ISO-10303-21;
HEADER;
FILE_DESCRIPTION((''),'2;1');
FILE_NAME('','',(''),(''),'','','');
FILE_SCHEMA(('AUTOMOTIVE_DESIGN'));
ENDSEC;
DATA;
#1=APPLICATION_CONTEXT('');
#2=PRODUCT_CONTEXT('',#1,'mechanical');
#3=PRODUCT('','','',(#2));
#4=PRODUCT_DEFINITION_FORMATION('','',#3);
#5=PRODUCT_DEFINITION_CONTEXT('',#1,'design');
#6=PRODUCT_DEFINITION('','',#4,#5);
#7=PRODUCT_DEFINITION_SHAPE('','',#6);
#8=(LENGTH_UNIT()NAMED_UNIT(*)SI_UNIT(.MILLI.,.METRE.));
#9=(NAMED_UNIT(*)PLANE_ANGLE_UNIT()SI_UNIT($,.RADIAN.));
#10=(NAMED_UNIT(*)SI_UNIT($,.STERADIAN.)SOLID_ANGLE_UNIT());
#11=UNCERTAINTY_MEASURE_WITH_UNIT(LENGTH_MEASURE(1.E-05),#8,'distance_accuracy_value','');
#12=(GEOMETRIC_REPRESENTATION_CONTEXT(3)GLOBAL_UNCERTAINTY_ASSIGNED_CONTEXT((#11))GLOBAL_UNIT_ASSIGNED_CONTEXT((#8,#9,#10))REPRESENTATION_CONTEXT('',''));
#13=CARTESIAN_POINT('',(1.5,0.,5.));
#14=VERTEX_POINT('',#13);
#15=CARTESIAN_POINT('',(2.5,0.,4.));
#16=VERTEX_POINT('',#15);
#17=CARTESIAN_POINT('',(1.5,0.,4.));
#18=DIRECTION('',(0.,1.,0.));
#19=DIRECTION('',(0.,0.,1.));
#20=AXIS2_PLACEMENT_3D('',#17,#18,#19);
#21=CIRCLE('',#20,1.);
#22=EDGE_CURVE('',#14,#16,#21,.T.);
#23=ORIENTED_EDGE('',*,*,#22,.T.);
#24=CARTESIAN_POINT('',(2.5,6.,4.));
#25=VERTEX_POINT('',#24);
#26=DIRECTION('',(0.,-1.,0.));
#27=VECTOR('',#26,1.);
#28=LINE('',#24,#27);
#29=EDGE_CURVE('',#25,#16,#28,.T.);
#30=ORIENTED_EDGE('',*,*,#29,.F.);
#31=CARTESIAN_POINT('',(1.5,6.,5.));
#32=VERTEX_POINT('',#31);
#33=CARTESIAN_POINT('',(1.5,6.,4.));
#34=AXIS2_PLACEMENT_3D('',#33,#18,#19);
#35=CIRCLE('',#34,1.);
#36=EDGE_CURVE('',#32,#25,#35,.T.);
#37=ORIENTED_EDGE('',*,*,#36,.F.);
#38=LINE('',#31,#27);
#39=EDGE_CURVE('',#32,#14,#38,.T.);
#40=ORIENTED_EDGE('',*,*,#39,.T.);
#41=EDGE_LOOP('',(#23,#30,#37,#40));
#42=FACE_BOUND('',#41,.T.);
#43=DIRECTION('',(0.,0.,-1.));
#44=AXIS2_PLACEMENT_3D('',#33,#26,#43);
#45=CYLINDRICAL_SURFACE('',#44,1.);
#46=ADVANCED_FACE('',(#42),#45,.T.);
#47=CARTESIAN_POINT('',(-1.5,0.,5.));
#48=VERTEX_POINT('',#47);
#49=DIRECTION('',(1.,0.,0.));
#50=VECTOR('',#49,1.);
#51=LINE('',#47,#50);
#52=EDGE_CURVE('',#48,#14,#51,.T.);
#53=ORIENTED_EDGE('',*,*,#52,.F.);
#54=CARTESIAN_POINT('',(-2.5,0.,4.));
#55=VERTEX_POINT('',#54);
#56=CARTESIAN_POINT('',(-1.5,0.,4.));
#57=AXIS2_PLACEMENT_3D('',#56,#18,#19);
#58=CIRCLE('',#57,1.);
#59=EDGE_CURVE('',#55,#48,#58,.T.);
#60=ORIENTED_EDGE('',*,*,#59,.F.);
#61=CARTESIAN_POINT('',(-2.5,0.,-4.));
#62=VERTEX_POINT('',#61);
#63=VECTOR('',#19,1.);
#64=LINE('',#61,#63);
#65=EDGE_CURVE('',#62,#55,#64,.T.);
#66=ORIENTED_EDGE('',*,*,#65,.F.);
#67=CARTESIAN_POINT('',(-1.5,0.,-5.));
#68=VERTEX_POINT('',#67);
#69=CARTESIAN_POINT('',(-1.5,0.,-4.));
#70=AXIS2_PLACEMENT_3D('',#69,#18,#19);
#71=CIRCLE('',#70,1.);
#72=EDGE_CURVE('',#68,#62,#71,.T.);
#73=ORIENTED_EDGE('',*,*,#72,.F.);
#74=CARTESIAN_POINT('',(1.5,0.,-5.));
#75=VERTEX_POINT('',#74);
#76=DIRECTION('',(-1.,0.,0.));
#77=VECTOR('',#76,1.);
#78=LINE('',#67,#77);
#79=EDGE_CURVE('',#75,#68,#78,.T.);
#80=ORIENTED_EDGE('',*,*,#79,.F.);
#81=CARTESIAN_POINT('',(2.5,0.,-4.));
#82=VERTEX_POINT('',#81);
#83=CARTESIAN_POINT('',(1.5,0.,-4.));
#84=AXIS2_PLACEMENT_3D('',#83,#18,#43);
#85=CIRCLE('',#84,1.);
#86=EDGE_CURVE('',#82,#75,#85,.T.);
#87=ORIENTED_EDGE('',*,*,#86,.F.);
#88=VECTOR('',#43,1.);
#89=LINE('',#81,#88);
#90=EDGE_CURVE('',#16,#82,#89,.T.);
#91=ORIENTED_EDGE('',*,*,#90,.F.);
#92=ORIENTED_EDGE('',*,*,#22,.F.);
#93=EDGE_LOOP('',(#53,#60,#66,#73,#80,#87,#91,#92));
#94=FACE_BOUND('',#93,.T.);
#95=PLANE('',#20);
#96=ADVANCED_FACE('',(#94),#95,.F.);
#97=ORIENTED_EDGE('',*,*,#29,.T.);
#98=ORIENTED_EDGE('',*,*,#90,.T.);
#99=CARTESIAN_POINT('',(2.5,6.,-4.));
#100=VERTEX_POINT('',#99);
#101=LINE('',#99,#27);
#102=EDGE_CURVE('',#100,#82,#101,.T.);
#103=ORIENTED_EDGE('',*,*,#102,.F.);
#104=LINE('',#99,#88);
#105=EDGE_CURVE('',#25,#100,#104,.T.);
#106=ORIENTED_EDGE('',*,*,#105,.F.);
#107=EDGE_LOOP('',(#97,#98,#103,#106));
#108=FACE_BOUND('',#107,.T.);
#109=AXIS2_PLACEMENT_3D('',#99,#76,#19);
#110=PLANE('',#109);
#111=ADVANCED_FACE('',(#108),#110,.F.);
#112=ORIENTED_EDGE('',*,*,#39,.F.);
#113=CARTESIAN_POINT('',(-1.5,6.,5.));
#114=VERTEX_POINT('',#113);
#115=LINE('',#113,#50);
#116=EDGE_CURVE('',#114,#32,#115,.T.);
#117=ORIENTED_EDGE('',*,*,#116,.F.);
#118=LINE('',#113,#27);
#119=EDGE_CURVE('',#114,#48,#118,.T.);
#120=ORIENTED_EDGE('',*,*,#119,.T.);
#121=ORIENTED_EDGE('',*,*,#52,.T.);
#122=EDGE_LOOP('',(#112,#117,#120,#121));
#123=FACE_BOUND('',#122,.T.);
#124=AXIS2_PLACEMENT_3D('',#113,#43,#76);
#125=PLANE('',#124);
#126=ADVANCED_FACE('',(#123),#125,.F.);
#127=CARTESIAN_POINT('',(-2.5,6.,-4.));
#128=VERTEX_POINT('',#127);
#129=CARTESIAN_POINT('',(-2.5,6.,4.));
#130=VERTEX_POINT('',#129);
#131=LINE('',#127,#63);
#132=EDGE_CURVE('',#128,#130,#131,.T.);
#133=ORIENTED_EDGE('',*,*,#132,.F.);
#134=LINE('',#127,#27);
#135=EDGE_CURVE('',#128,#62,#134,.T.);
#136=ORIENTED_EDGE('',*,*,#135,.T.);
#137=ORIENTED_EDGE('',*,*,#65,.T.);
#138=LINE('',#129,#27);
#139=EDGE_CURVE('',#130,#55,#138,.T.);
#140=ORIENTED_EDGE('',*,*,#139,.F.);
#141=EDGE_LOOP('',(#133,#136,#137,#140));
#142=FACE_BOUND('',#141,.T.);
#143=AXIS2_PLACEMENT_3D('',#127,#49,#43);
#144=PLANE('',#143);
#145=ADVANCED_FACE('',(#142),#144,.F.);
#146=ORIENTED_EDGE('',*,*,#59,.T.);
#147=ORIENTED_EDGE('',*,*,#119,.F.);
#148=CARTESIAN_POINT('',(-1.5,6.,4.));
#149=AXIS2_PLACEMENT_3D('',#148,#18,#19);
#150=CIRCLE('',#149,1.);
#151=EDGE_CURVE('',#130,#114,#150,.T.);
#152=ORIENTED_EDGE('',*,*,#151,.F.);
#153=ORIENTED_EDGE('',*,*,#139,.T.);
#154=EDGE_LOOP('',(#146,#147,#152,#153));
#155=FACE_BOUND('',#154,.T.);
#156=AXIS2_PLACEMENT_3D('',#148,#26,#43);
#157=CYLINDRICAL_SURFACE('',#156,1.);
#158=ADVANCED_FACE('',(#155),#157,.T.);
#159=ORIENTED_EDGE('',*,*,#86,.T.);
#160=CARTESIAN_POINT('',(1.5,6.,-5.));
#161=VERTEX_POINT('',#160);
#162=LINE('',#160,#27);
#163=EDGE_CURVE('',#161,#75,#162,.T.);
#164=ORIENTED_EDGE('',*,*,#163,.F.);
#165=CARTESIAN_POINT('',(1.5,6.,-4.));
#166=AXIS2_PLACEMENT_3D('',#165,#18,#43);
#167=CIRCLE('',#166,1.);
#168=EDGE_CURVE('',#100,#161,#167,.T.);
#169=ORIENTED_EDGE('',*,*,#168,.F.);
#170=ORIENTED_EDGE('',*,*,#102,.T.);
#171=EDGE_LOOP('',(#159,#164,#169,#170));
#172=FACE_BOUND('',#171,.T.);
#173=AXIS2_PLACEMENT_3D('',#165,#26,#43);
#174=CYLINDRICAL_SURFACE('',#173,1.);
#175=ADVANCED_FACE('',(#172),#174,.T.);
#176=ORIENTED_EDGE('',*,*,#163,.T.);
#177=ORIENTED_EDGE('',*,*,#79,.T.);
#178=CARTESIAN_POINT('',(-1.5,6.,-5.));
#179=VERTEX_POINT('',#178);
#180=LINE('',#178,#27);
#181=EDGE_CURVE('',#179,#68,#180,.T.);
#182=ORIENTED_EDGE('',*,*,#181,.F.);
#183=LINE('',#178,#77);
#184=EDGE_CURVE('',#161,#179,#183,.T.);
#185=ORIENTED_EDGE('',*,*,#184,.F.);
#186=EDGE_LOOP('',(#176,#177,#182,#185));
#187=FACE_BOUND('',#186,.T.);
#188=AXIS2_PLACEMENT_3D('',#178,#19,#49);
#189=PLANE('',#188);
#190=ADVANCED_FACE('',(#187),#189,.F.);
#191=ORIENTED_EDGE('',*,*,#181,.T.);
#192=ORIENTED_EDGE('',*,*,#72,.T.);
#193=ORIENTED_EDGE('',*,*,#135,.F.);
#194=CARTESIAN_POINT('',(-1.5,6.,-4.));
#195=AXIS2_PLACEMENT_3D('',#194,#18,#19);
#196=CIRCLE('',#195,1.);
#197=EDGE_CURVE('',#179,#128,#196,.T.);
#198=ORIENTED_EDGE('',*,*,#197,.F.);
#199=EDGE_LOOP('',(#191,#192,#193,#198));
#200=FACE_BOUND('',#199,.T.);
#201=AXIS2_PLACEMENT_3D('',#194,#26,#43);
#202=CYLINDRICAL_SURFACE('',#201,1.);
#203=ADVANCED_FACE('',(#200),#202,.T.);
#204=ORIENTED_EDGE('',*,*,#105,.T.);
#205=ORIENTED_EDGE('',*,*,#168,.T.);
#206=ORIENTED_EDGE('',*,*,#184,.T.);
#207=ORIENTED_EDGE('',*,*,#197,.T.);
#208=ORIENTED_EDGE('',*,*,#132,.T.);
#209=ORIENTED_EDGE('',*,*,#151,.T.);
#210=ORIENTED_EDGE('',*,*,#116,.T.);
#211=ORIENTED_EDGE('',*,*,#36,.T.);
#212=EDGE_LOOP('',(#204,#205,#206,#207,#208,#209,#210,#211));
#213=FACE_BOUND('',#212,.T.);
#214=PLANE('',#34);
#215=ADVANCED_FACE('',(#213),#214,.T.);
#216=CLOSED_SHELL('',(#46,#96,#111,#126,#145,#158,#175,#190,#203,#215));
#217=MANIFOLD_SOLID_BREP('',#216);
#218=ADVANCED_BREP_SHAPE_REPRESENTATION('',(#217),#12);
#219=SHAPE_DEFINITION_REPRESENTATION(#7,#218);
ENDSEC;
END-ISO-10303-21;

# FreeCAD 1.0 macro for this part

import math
import FreeCAD as App
import Part
import Sketcher
from FreeCAD import Vector

doc = App.newDocument("Part")
body = doc.addObject("PartDesign::Body", "Body")

# Sketch on XZ plane
sketch1 = body.newObject("Sketcher::SketchObject", "Sketch")
sketch1.AttachmentSupport = (doc.getObject("XZ_Plane"), [""])
sketch1.MapMode = "FlatFace"
sketch1.addGeometry([
    Part.LineSegment(Vector(1.5, -5, 0), Vector(-1.5, -5, 0)),  # 0
    Part.ArcOfCircle(Part.Circle(Vector(-1.5, -4, 0), Vector(0, 0, 1), 1), math.radians(-180), math.radians(-90)),  # 1
    Part.LineSegment(Vector(-2.5, -4, 0), Vector(-2.5, 4, 0)),  # 2
    Part.ArcOfCircle(Part.Circle(Vector(-1.5, 4, 0), Vector(0, 0, 1), 1), math.radians(90), math.radians(180)),  # 3
    Part.LineSegment(Vector(-1.5, 5, 0), Vector(1.5, 5, 0)),  # 4
    Part.ArcOfCircle(Part.Circle(Vector(1.5, 4, 0), Vector(0, 0, 1), 1), math.radians(0), math.radians(90)),  # 5
    Part.LineSegment(Vector(2.5, 4, 0), Vector(2.5, -4, 0)),  # 6
    Part.ArcOfCircle(Part.Circle(Vector(1.5, -4, 0), Vector(0, 0, 1), 1), math.radians(-90), math.radians(0)),  # 7
], False)
sketch1.addConstraint([
    Sketcher.Constraint("Tangent", 0, 2, 1, 2),
    Sketcher.Constraint("Tangent", 1, 1, 2, 1),
    Sketcher.Constraint("Tangent", 2, 2, 3, 2),
    Sketcher.Constraint("Tangent", 3, 1, 4, 1),
    Sketcher.Constraint("Tangent", 4, 2, 5, 2),
    Sketcher.Constraint("Tangent", 5, 1, 6, 1),
    Sketcher.Constraint("Tangent", 6, 2, 7, 2),
    Sketcher.Constraint("Tangent", 7, 1, 0, 1),
    Sketcher.Constraint("Horizontal", 0),
    Sketcher.Constraint("Vertical", 2),
    Sketcher.Constraint("Horizontal", 4),
    Sketcher.Constraint("Vertical", 6),
    Sketcher.Constraint("Equal", 1, 3),
    Sketcher.Constraint("Equal", 3, 5),
    Sketcher.Constraint("Equal", 5, 7),
    Sketcher.Constraint("Symmetric", 1, 3, 5, 3, -1, 1),
    Sketcher.Constraint("Radius", 1, 1.0),
    Sketcher.Constraint("DistanceX", 0, 2, 0, 1, 3.0),
    Sketcher.Constraint("DistanceY", 2, 1, 2, 2, 8.0),
])
pad1 = body.newObject("PartDesign::Pad", "Pad")
pad1.Profile = sketch1
pad1.Length = 6
pad1.Reversed = True

doc.recompute()
